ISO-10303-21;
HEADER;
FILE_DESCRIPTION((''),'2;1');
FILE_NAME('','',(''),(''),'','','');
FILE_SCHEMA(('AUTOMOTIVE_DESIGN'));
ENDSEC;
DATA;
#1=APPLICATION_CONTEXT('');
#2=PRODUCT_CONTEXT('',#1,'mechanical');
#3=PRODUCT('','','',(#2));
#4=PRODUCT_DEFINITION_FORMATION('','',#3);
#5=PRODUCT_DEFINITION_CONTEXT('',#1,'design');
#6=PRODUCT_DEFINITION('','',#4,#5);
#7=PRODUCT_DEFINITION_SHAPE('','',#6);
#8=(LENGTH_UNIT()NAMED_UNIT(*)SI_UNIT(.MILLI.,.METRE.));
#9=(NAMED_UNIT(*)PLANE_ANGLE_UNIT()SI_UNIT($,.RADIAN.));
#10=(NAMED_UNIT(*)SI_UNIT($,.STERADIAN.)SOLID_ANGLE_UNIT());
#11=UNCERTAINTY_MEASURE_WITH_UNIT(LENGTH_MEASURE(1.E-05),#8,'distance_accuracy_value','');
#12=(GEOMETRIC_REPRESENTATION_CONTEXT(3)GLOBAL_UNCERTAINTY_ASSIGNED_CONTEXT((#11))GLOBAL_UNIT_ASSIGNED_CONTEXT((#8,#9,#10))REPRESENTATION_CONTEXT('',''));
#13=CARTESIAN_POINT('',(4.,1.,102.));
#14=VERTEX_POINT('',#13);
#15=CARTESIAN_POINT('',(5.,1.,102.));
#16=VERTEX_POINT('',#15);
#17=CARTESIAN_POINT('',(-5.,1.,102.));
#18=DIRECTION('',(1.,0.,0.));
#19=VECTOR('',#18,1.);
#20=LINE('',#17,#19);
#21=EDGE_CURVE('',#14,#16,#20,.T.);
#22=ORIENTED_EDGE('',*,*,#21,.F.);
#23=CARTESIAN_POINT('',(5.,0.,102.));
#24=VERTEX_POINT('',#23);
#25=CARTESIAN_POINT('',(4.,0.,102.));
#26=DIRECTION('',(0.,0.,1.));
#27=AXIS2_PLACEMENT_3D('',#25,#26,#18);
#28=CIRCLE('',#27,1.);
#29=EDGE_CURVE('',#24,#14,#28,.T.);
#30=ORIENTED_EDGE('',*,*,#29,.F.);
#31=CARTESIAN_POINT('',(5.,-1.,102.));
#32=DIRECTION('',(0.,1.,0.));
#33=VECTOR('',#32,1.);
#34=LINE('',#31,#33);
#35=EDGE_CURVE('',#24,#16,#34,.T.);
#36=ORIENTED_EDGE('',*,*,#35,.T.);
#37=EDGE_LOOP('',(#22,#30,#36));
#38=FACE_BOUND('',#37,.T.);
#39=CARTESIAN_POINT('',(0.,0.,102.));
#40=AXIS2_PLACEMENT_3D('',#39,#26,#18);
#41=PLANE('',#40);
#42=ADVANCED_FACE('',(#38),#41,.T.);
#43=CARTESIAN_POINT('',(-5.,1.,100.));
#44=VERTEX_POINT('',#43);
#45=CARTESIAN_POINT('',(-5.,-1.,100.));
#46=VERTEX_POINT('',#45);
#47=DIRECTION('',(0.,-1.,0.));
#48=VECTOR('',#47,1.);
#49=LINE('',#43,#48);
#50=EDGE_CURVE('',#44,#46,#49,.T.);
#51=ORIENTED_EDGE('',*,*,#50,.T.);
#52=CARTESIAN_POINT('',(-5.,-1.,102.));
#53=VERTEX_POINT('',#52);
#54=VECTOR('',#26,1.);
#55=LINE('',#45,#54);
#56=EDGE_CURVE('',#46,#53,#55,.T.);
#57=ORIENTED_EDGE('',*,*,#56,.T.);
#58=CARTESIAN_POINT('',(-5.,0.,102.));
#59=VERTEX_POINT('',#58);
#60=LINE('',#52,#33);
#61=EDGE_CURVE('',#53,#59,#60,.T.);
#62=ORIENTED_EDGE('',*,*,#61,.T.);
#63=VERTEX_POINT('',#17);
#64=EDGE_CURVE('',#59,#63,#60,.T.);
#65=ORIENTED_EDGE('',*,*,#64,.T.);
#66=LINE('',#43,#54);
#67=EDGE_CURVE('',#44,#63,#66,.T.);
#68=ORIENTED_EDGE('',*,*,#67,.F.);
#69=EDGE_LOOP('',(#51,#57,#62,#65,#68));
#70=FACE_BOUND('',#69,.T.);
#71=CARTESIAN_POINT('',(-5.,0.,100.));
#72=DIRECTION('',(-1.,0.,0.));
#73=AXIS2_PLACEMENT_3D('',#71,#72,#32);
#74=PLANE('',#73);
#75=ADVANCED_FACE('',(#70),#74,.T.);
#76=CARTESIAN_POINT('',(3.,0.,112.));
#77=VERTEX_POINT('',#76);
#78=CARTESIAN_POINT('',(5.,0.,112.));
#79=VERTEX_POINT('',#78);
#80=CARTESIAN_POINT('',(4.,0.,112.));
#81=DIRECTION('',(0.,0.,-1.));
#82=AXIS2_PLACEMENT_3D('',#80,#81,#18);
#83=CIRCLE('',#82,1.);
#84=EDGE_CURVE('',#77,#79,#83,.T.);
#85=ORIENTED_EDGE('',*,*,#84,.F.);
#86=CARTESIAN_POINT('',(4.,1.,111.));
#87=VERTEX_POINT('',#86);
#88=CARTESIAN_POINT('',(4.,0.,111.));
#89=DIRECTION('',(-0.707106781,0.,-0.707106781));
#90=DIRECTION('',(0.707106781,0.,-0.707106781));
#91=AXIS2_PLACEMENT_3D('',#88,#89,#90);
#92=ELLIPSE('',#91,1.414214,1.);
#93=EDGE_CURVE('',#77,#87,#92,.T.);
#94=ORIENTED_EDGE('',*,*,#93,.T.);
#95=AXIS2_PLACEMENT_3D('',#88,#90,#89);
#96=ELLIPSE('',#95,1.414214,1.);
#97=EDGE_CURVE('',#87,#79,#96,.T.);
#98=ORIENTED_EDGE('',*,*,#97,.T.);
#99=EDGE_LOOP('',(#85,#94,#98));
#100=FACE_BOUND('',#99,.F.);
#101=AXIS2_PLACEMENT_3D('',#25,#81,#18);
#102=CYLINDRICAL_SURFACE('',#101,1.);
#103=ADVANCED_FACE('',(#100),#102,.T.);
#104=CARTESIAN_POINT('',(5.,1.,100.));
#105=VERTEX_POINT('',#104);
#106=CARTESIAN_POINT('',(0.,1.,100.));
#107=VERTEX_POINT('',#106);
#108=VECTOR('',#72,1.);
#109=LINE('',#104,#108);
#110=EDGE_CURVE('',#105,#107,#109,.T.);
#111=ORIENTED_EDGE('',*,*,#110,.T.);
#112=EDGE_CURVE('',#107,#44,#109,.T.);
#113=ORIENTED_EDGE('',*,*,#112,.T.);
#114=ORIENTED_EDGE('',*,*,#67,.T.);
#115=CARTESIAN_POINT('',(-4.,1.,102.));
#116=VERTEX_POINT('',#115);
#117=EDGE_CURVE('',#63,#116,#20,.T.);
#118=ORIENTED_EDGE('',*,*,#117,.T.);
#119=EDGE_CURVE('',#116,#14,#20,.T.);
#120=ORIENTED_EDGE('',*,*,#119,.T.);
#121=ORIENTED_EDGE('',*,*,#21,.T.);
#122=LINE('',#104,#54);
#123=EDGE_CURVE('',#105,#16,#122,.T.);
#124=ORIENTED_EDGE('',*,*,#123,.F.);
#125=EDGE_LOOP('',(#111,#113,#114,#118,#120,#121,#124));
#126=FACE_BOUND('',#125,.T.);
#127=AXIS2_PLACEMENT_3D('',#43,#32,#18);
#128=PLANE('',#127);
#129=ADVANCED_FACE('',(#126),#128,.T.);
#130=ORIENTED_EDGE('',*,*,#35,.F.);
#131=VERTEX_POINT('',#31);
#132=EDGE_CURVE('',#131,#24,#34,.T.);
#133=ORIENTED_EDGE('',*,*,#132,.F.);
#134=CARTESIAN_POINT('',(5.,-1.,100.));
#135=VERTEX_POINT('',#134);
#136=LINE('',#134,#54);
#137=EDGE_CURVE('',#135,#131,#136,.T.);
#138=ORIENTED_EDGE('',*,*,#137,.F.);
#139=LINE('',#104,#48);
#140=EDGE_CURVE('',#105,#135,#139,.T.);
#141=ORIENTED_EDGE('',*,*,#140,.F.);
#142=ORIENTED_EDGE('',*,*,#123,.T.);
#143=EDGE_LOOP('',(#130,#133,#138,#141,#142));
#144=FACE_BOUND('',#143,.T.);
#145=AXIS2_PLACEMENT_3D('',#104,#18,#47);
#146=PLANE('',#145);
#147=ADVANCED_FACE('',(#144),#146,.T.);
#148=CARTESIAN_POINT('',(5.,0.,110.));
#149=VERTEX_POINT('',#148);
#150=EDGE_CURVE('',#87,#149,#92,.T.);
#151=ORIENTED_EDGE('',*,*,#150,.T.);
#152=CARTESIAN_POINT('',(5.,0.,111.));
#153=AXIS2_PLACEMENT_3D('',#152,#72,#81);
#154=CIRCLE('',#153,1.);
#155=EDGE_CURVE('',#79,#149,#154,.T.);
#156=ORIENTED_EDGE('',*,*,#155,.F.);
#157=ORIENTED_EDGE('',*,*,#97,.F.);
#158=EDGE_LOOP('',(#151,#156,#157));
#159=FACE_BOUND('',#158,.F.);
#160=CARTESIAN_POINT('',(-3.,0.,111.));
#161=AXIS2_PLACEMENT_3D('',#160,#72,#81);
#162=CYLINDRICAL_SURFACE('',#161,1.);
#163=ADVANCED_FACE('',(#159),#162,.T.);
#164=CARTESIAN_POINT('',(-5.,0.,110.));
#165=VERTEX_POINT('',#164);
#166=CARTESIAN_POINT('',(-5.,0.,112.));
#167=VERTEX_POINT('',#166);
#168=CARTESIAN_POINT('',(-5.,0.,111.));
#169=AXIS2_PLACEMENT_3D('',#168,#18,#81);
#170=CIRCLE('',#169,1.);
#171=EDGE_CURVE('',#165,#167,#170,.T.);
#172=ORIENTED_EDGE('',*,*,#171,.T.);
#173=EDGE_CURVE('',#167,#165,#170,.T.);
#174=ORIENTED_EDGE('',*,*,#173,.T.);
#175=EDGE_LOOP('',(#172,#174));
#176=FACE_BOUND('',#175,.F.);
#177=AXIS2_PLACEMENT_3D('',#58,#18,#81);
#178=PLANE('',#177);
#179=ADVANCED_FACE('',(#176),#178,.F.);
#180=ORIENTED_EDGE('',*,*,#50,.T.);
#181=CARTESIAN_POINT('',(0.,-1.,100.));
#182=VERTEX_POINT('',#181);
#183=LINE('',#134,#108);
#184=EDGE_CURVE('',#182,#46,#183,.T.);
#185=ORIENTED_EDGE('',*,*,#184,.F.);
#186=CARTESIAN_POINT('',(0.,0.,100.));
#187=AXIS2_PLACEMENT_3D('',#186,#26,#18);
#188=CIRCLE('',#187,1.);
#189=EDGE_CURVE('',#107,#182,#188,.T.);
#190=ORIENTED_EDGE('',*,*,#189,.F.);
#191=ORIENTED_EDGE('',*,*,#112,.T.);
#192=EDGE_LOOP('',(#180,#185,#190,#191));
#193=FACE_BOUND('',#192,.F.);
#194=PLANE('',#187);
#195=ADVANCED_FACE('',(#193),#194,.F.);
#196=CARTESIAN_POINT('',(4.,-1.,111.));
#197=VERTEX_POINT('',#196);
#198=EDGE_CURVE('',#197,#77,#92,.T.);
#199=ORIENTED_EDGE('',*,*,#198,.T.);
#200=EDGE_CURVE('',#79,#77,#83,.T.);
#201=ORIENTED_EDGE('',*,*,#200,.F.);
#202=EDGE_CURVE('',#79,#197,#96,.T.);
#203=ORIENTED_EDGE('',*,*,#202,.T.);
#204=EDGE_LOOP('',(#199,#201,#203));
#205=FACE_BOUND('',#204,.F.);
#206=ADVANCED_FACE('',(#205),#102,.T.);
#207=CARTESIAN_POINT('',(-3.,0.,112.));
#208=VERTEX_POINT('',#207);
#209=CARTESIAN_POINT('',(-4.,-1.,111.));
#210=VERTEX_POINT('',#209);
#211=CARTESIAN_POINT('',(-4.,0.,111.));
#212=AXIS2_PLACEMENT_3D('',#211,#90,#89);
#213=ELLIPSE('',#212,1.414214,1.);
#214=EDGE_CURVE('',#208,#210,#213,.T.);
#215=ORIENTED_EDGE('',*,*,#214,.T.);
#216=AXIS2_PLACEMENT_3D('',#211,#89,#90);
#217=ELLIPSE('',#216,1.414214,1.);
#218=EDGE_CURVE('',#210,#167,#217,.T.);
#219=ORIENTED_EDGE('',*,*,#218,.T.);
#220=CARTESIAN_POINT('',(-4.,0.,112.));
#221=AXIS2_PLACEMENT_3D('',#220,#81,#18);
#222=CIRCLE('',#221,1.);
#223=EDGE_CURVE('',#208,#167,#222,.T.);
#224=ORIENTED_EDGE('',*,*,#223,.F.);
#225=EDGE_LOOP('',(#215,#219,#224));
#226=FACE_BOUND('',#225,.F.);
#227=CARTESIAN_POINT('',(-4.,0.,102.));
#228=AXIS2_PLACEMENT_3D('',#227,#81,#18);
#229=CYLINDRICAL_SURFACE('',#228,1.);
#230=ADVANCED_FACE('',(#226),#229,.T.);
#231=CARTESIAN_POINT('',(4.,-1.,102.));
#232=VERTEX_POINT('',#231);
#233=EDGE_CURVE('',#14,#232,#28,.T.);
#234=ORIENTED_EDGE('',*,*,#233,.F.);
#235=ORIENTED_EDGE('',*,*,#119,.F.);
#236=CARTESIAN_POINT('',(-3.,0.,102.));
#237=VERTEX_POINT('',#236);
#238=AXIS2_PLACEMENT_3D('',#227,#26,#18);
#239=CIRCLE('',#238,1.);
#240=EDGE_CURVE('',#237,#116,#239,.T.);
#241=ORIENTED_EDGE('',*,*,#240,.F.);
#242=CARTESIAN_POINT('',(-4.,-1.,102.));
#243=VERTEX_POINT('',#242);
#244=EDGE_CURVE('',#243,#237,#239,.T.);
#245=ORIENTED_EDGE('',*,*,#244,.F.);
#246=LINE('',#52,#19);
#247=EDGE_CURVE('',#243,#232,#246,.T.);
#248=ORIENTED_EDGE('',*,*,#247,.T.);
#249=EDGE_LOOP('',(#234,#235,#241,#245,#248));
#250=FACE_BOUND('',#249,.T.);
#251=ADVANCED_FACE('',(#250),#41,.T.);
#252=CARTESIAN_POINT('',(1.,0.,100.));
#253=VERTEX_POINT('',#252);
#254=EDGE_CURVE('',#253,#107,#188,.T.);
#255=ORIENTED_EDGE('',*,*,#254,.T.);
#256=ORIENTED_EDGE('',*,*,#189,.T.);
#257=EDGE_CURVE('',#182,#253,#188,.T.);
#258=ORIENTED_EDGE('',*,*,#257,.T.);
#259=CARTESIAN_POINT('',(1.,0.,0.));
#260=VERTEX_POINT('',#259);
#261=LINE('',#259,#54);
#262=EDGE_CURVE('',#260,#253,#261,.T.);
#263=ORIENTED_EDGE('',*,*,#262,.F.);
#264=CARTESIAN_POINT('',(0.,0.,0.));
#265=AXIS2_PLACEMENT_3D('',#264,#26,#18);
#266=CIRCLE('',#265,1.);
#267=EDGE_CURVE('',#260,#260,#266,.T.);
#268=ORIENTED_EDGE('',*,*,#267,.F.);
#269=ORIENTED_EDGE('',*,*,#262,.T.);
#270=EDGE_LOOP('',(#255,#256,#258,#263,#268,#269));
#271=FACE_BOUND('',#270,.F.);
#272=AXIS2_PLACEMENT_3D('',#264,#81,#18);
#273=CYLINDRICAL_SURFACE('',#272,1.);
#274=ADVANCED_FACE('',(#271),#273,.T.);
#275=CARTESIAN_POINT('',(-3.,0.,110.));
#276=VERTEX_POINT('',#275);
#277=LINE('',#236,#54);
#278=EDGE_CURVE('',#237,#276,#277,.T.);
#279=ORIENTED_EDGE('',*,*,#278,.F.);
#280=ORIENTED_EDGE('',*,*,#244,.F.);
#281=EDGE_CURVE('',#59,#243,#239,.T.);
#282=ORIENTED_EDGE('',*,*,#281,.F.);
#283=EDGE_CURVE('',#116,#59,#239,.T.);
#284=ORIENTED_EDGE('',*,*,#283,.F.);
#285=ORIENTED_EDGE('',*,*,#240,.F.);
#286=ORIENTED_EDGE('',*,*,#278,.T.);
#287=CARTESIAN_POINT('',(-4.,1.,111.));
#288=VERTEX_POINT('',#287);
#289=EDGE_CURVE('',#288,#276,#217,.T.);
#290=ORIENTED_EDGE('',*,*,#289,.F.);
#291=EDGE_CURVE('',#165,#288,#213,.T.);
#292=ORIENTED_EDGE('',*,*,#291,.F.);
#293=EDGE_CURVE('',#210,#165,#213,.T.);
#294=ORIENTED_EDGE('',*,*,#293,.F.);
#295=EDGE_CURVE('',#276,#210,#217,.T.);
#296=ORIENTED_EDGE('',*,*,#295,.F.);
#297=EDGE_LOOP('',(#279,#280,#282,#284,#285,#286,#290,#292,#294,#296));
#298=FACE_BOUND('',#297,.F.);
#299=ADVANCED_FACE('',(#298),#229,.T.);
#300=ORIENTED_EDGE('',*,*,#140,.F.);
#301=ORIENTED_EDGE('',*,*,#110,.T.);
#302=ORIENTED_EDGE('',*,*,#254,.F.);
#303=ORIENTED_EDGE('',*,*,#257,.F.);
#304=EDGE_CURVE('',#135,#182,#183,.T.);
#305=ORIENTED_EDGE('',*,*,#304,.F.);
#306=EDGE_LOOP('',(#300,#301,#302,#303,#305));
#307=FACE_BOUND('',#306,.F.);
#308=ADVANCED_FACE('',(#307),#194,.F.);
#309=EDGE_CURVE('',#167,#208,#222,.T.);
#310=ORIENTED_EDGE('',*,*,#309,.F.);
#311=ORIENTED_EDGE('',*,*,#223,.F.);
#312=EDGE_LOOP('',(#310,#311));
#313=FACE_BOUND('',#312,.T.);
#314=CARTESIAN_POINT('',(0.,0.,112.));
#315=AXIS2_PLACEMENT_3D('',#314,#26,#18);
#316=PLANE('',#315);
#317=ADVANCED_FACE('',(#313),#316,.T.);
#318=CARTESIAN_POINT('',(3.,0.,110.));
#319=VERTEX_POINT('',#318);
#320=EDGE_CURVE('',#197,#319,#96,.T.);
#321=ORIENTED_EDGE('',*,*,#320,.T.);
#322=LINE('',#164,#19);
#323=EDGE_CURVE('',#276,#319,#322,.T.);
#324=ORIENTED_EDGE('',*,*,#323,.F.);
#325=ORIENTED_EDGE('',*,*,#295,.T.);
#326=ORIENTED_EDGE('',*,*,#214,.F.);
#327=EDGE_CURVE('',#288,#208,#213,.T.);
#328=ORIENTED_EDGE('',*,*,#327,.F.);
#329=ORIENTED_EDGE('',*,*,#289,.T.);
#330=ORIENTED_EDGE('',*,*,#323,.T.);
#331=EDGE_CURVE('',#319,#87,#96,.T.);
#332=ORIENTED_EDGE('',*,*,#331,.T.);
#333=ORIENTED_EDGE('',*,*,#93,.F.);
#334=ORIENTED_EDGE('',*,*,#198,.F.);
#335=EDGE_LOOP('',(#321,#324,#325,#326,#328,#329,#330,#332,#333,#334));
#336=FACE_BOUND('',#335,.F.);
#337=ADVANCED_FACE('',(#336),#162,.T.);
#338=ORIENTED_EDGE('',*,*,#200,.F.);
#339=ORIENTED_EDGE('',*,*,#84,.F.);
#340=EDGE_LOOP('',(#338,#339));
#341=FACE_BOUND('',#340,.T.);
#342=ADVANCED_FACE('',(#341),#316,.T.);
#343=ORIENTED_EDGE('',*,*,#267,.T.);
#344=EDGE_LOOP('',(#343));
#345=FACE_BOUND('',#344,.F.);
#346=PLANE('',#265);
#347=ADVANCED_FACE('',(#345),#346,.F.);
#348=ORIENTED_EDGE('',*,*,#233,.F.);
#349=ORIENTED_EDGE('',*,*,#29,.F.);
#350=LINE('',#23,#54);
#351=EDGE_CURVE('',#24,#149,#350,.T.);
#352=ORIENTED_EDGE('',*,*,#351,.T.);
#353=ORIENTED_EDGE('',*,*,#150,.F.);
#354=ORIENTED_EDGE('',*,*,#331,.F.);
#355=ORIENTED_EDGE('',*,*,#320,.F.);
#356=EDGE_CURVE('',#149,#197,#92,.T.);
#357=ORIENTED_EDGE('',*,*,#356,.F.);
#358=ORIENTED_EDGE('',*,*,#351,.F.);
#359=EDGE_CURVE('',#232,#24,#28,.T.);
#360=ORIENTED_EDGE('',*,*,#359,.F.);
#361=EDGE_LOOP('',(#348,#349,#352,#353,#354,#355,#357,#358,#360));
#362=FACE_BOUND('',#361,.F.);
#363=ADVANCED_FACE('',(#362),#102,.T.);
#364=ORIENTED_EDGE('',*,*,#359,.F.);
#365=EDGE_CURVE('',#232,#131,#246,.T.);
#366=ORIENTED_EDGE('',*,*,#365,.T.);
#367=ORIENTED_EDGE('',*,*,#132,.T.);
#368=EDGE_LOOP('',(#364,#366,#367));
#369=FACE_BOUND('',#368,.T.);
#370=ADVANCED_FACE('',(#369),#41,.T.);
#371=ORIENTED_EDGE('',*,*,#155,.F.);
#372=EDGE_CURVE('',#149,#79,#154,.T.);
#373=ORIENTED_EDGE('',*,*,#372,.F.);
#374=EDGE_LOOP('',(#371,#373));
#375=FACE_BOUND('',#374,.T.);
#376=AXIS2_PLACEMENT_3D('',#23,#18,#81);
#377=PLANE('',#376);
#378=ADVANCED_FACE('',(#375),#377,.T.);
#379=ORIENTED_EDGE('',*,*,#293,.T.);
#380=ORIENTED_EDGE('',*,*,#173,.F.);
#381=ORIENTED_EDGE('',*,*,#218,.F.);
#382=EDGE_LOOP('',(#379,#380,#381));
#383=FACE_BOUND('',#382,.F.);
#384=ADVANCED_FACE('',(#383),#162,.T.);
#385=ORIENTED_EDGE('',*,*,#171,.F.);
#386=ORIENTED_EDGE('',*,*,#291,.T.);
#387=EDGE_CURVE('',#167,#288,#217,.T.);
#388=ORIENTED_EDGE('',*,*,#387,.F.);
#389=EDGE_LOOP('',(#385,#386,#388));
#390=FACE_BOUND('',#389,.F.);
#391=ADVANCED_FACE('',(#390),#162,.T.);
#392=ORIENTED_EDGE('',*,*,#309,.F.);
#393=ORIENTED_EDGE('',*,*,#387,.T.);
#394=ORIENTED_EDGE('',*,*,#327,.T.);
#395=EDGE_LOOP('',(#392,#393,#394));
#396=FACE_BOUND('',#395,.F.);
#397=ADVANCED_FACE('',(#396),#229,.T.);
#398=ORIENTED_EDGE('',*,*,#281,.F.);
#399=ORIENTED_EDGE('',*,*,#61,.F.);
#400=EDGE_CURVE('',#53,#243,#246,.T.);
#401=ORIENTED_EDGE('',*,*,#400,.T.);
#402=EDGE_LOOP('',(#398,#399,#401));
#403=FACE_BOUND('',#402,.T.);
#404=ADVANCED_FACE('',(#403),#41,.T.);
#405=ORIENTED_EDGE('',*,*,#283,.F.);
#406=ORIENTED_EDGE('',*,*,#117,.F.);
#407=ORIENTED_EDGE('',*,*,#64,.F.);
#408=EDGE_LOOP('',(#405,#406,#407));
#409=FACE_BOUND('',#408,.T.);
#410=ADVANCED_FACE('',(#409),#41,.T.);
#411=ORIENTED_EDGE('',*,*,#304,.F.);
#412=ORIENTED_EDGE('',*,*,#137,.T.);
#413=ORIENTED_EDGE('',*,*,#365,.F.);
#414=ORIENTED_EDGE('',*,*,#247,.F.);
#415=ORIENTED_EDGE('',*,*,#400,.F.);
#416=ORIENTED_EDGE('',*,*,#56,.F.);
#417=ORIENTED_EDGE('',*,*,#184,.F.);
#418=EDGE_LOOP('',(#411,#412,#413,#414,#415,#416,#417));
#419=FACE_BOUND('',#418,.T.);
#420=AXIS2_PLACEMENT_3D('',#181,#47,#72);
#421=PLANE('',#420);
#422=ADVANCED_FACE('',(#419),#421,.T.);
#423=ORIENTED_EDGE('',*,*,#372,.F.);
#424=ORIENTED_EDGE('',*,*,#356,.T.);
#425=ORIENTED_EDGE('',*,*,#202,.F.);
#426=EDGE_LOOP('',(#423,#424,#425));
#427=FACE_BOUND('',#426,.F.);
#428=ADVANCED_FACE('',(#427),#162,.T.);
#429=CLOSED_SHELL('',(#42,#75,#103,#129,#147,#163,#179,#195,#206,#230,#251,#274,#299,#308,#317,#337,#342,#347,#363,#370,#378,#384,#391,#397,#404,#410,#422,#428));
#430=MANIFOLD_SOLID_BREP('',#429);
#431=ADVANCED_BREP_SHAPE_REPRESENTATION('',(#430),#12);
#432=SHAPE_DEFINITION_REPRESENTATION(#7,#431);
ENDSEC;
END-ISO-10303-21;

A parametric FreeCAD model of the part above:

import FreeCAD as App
import Part
import Sketcher

V = App.Vector


def add_polygon(sketch, points):
    """Adds a closed chain of lines whose ends are joined by coincident constraints."""
    first, n = sketch.GeometryCount, len(points)
    for a, b in zip(points, points[1:] + points[:1]):
        sketch.addGeometry(Part.LineSegment(App.Vector(*a, 0), App.Vector(*b, 0)), False)
    for i in range(n):
        sketch.addConstraint(Sketcher.Constraint("Coincident", first + i, 2, first + (i + 1) % n, 1))

doc = App.newDocument("Part")
params = doc.addObject("Spreadsheet::Sheet", "Params")
for row, (alias, value) in enumerate([
    ("sketch1_diameter", "2 mm"),
    ("pad1_length", "100 mm"),
    ("sketch2_width", "10 mm"),
    ("sketch2_height", "2 mm"),
    ("pad2_length", "2 mm"),
    ("sketch3_diameter", "2 mm"),
    ("pad3_length", "10 mm"),
    ("sketch4_diameter", "2 mm"),
    ("pad4_length", "8 mm"),
    ("pad4_length2", "2 mm"),
], start=1):
    params.set(f"A{row}", alias)
    params.set(f"B{row}", "=" + value)
    params.setAlias(f"B{row}", alias)

body = doc.addObject("PartDesign::Body", "Body")

# Sketch on XY plane
sketch1 = body.newObject("Sketcher::SketchObject", "Sketch")
sketch1.AttachmentSupport = (doc.getObject("XY_Plane"), [""])
sketch1.MapMode = "FlatFace"
sketch1.addGeometry(Part.Circle(V(0, 0, 0), V(0, 0, 1), 1), False)
sketch1.addConstraint(Sketcher.Constraint("Coincident", 0, 3, -1, 1))
sketch1.addConstraint(Sketcher.Constraint("Diameter", 0, 2.0))
sketch1.setExpression("Constraints[1]", "Params.sketch1_diameter")
pad1 = body.newObject("PartDesign::Pad", "Pad")
pad1.Profile = sketch1
pad1.setExpression("Length", "Params.pad1_length")

# Sketch on XY plane
sketch2 = body.newObject("Sketcher::SketchObject", "Sketch001")
sketch2.AttachmentSupport = (doc.getObject("XY_Plane"), [""])
sketch2.MapMode = "FlatFace"
sketch2.AttachmentOffset = App.Placement(V(0, 0, 100), App.Rotation())
add_polygon(sketch2, [(-5, 1), (-5, -1), (5, -1), (5, 1)])  # lines 0-3
sketch2.addConstraint(Sketcher.Constraint("Vertical", 0))
sketch2.addConstraint(Sketcher.Constraint("Horizontal", 1))
sketch2.addConstraint(Sketcher.Constraint("Vertical", 2))
sketch2.addConstraint(Sketcher.Constraint("Horizontal", 3))
sketch2.addConstraint(Sketcher.Constraint("Symmetric", 0, 2, 2, 2, -1, 1))
sketch2.addConstraint(Sketcher.Constraint("DistanceX", 1, 1, 1, 2, 10.0))
sketch2.addConstraint(Sketcher.Constraint("DistanceY", 0, 2, 0, 1, 2.0))
sketch2.setExpression("Constraints[9]", "Params.sketch2_width")
sketch2.setExpression("Constraints[10]", "Params.sketch2_height")
pad2 = body.newObject("PartDesign::Pad", "Pad001")
pad2.Profile = sketch2
pad2.setExpression("Length", "Params.pad2_length")

# Sketch on XY plane
sketch3 = body.newObject("Sketcher::SketchObject", "Sketch002")
sketch3.AttachmentSupport = (doc.getObject("XY_Plane"), [""])
sketch3.MapMode = "FlatFace"
sketch3.AttachmentOffset = App.Placement(V(0, 0, 102), App.Rotation())
sketch3.addGeometry(Part.Circle(V(-4, 0, 0), V(0, 0, 1), 1), False)
sketch3.addGeometry(Part.Circle(V(4, 0, 0), V(0, 0, 1), 1), False)
sketch3.addConstraint(Sketcher.Constraint("Equal", 0, 1))
sketch3.addConstraint(Sketcher.Constraint("Symmetric", 0, 3, 1, 3, -1, 1))
sketch3.addConstraint(Sketcher.Constraint("PointOnObject", 0, 3, -1))
sketch3.addConstraint(Sketcher.Constraint("Diameter", 0, 2.0))
sketch3.addConstraint(Sketcher.Constraint("DistanceX", 0, 3, -1, 1, 4.0))
sketch3.setExpression("Constraints[3]", "Params.sketch3_diameter")
pad3 = body.newObject("PartDesign::Pad", "Pad002")
pad3.Profile = sketch3
pad3.setExpression("Length", "Params.pad3_length")

# Sketch on YZ plane
sketch4 = body.newObject("Sketcher::SketchObject", "Sketch003")
sketch4.AttachmentSupport = (doc.getObject("YZ_Plane"), [""])
sketch4.MapMode = "FlatFace"
sketch4.AttachmentOffset = App.Placement(V(0, 0, -3), App.Rotation())
sketch4.addGeometry(Part.Circle(V(0, 111, 0), V(0, 0, 1), 1), False)
sketch4.addConstraint(Sketcher.Constraint("PointOnObject", 0, 3, -2))
sketch4.addConstraint(Sketcher.Constraint("Diameter", 0, 2.0))
sketch4.addConstraint(Sketcher.Constraint("DistanceY", -1, 1, 0, 3, 111.0))
sketch4.setExpression("Constraints[1]", "Params.sketch4_diameter")
pad4 = body.newObject("PartDesign::Pad", "Pad003")
pad4.Profile = sketch4
pad4.Type = "TwoLengths"
pad4.setExpression("Length", "Params.pad4_length")
pad4.setExpression("Length2", "Params.pad4_length2")

doc.recompute()
